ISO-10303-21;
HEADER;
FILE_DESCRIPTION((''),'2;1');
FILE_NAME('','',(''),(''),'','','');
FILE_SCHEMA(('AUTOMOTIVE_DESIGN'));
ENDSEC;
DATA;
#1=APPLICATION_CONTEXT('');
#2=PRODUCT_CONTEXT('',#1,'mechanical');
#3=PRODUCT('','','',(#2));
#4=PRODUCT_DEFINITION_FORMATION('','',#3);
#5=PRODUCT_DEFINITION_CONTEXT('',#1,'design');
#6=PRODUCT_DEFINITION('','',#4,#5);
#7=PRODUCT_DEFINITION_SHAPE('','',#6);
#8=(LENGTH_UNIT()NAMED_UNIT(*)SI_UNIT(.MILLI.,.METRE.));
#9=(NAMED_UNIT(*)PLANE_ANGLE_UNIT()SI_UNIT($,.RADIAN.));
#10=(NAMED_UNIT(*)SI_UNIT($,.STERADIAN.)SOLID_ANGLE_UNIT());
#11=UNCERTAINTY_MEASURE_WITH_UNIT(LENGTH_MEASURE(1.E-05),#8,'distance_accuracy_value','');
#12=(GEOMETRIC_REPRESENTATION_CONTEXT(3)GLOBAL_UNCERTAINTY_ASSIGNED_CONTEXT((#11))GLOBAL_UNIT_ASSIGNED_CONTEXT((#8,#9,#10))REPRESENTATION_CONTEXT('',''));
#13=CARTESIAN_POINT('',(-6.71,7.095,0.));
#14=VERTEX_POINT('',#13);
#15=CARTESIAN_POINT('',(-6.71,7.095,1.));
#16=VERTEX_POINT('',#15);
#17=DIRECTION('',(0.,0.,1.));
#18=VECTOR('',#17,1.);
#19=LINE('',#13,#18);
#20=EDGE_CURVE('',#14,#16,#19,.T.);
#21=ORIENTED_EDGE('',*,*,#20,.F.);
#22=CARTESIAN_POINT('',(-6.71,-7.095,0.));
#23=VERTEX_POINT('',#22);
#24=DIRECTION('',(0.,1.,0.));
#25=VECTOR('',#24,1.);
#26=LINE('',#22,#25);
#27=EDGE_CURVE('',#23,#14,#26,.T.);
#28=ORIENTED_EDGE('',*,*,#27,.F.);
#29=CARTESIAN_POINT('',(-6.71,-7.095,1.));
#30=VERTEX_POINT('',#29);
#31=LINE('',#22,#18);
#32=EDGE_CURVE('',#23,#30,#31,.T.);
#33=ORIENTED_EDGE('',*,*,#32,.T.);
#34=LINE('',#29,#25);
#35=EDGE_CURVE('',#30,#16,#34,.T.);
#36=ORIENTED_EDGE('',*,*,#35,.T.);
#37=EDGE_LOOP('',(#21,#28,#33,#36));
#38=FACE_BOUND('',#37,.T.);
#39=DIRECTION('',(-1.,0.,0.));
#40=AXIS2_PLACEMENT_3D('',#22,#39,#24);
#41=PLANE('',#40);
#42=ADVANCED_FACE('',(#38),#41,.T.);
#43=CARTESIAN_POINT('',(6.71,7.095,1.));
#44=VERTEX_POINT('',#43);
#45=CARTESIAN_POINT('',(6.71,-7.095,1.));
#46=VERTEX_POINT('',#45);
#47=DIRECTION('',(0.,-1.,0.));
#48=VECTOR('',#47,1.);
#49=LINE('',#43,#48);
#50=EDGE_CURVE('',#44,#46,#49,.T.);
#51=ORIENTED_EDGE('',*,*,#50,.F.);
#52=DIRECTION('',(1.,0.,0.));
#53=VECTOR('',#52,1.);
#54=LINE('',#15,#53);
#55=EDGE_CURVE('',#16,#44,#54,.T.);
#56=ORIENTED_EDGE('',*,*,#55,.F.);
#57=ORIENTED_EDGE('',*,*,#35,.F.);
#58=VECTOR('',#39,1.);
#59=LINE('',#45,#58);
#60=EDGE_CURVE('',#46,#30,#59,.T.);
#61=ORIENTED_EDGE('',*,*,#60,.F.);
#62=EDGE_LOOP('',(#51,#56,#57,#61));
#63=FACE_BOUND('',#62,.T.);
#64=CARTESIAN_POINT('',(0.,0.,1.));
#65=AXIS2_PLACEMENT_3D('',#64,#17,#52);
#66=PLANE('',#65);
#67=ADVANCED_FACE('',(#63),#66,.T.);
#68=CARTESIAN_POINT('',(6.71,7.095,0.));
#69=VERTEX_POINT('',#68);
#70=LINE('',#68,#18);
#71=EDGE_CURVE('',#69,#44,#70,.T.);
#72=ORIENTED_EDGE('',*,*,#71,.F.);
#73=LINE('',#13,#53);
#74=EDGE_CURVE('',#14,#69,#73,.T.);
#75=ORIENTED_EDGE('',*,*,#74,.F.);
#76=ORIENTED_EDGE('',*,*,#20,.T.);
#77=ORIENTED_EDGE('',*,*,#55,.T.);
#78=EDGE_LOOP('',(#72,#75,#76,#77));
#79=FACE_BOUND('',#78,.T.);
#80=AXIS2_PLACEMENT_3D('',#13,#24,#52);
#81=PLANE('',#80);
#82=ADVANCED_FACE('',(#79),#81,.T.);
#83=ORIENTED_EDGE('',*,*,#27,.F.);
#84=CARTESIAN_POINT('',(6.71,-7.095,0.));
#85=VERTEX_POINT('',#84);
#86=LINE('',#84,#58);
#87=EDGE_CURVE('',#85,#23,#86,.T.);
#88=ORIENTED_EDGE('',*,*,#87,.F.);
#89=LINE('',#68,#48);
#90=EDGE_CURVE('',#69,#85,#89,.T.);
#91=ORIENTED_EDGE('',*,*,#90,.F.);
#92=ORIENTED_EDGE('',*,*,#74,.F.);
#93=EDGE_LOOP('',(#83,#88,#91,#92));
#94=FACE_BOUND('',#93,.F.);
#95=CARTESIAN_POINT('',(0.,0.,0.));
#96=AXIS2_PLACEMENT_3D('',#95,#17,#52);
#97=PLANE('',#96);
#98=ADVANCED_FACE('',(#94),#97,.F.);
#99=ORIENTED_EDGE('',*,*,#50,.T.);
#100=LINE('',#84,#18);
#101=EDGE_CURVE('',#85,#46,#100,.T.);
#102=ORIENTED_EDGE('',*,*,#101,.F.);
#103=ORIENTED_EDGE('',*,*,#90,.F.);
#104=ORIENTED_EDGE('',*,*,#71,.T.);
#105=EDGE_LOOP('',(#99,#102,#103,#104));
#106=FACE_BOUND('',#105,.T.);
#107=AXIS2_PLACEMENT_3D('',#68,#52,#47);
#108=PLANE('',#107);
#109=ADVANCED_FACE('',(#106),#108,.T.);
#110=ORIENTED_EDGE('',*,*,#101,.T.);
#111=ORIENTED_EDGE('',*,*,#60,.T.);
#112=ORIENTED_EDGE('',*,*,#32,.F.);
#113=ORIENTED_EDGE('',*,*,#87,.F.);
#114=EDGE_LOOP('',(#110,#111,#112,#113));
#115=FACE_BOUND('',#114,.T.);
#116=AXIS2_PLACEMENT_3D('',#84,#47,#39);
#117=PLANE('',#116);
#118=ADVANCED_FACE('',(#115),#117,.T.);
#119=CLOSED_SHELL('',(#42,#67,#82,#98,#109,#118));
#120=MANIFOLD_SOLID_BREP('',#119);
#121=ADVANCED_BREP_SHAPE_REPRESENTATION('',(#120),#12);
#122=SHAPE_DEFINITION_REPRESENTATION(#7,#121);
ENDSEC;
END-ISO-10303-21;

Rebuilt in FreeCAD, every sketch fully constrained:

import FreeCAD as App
import Part
import Sketcher
Q = App.Units.Quantity


def add_polygon(sketch, points):
    """Adds a closed chain of lines whose ends are joined by coincident constraints."""
    first, n = sketch.GeometryCount, len(points)
    for a, b in zip(points, points[1:] + points[:1]):
        sketch.addGeometry(Part.LineSegment(App.Vector(*a, 0), App.Vector(*b, 0)), False)
    for i in range(n):
        sketch.addConstraint(Sketcher.Constraint("Coincident", first + i, 2, first + (i + 1) % n, 1))

doc = App.newDocument("Part")
body = doc.addObject("PartDesign::Body", "Body")

# Sketch on XY plane
sketch1 = body.newObject("Sketcher::SketchObject", "Sketch")
sketch1.AttachmentSupport = (doc.getObject("XY_Plane"), [""])
sketch1.MapMode = "FlatFace"
add_polygon(sketch1, [(6.71, 7.095), (-6.71, 7.095), (-6.71, -7.095), (6.71, -7.095)])  # lines 0-3
sketch1.addConstraint([
    Sketcher.Constraint("Horizontal", 0),
    Sketcher.Constraint("Vertical", 1),
    Sketcher.Constraint("Horizontal", 2),
    Sketcher.Constraint("Vertical", 3),
    Sketcher.Constraint("Symmetric", 0, 2, 2, 2, -1, 1),
    Sketcher.Constraint("DistanceX", 0, 2, 0, 1, Q("13.42 mm")),
    Sketcher.Constraint("DistanceY", 1, 2, 1, 1, Q("14.19 mm")),
])
pad1 = body.newObject("PartDesign::Pad", "Pad")
pad1.Profile = sketch1
pad1.Length = 1

doc.recompute()
